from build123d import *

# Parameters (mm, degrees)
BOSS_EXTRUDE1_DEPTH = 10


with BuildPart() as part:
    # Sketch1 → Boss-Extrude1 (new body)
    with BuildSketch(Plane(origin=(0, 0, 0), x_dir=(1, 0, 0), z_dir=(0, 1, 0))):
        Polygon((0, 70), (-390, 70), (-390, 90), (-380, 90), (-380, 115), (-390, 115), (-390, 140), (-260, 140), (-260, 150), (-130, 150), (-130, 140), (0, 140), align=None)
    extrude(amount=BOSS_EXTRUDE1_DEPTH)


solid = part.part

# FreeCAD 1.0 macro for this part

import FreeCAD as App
import Part
import Sketcher


def add_polygon(sketch, points):
    """Adds a closed chain of lines whose ends are joined by coincident constraints."""
    first, n = sketch.GeometryCount, len(points)
    for a, b in zip(points, points[1:] + points[:1]):
        sketch.addGeometry(Part.LineSegment(App.Vector(*a, 0), App.Vector(*b, 0)), False)
    for i in range(n):
        sketch.addConstraint(Sketcher.Constraint("Coincident", first + i, 2, first + (i + 1) % n, 1))

doc = App.newDocument("Part")
body = doc.addObject("PartDesign::Body", "Body")

# Sketch on XZ plane
sketch1 = body.newObject("Sketcher::SketchObject", "Sketch")
sketch1.AttachmentSupport = (doc.getObject("XZ_Plane"), [""])
sketch1.MapMode = "FlatFace"
add_polygon(sketch1, [(-390, -70), (0, -70), (0, -140), (-130, -140), (-130, -150), (-260, -150), (-260, -140), (-390, -140), (-390, -115), (-380, -115), (-380, -90), (-390, -90)])  # lines 0-11
sketch1.addConstraint([
    Sketcher.Constraint("Horizontal", 0),
    Sketcher.Constraint("Vertical", 1),
    Sketcher.Constraint("Horizontal", 2),
    Sketcher.Constraint("Vertical", 3),
    Sketcher.Constraint("Horizontal", 4),
    Sketcher.Constraint("Vertical", 5),
    Sketcher.Constraint("Horizontal", 6),
    Sketcher.Constraint("Vertical", 7),
    Sketcher.Constraint("Horizontal", 8),
    Sketcher.Constraint("Vertical", 9),
    Sketcher.Constraint("Horizontal", 10),
    Sketcher.Constraint("Vertical", 11),
    Sketcher.Constraint("PointOnObject", 0, 2, -2),
    Sketcher.Constraint("Horizontal", 2, 2, 5, 2),
    Sketcher.Constraint("Vertical", 7, 2, 10, 2),
    Sketcher.Constraint("Equal", 2, 4),
    Sketcher.Constraint("Equal", 4, 6),
    Sketcher.Constraint("Equal", 10, 3),
    Sketcher.Constraint("Equal", 7, 9),
    Sketcher.Constraint("DistanceX", 0, 1, 0, 2, 390.0),
    Sketcher.Constraint("DistanceX", 8, 1, 8, 2, 10.0),
    Sketcher.Constraint("DistanceY", 1, 2, 1, 1, 70.0),
    Sketcher.Constraint("DistanceY", 7, 1, 7, 2, 25.0),
    Sketcher.Constraint("DistanceY", 0, 2, -1, 1, 70.0),
])
pad1 = body.newObject("PartDesign::Pad", "Pad")
pad1.Profile = sketch1
pad1.Length = 10
pad1.Reversed = True

doc.recompute()
